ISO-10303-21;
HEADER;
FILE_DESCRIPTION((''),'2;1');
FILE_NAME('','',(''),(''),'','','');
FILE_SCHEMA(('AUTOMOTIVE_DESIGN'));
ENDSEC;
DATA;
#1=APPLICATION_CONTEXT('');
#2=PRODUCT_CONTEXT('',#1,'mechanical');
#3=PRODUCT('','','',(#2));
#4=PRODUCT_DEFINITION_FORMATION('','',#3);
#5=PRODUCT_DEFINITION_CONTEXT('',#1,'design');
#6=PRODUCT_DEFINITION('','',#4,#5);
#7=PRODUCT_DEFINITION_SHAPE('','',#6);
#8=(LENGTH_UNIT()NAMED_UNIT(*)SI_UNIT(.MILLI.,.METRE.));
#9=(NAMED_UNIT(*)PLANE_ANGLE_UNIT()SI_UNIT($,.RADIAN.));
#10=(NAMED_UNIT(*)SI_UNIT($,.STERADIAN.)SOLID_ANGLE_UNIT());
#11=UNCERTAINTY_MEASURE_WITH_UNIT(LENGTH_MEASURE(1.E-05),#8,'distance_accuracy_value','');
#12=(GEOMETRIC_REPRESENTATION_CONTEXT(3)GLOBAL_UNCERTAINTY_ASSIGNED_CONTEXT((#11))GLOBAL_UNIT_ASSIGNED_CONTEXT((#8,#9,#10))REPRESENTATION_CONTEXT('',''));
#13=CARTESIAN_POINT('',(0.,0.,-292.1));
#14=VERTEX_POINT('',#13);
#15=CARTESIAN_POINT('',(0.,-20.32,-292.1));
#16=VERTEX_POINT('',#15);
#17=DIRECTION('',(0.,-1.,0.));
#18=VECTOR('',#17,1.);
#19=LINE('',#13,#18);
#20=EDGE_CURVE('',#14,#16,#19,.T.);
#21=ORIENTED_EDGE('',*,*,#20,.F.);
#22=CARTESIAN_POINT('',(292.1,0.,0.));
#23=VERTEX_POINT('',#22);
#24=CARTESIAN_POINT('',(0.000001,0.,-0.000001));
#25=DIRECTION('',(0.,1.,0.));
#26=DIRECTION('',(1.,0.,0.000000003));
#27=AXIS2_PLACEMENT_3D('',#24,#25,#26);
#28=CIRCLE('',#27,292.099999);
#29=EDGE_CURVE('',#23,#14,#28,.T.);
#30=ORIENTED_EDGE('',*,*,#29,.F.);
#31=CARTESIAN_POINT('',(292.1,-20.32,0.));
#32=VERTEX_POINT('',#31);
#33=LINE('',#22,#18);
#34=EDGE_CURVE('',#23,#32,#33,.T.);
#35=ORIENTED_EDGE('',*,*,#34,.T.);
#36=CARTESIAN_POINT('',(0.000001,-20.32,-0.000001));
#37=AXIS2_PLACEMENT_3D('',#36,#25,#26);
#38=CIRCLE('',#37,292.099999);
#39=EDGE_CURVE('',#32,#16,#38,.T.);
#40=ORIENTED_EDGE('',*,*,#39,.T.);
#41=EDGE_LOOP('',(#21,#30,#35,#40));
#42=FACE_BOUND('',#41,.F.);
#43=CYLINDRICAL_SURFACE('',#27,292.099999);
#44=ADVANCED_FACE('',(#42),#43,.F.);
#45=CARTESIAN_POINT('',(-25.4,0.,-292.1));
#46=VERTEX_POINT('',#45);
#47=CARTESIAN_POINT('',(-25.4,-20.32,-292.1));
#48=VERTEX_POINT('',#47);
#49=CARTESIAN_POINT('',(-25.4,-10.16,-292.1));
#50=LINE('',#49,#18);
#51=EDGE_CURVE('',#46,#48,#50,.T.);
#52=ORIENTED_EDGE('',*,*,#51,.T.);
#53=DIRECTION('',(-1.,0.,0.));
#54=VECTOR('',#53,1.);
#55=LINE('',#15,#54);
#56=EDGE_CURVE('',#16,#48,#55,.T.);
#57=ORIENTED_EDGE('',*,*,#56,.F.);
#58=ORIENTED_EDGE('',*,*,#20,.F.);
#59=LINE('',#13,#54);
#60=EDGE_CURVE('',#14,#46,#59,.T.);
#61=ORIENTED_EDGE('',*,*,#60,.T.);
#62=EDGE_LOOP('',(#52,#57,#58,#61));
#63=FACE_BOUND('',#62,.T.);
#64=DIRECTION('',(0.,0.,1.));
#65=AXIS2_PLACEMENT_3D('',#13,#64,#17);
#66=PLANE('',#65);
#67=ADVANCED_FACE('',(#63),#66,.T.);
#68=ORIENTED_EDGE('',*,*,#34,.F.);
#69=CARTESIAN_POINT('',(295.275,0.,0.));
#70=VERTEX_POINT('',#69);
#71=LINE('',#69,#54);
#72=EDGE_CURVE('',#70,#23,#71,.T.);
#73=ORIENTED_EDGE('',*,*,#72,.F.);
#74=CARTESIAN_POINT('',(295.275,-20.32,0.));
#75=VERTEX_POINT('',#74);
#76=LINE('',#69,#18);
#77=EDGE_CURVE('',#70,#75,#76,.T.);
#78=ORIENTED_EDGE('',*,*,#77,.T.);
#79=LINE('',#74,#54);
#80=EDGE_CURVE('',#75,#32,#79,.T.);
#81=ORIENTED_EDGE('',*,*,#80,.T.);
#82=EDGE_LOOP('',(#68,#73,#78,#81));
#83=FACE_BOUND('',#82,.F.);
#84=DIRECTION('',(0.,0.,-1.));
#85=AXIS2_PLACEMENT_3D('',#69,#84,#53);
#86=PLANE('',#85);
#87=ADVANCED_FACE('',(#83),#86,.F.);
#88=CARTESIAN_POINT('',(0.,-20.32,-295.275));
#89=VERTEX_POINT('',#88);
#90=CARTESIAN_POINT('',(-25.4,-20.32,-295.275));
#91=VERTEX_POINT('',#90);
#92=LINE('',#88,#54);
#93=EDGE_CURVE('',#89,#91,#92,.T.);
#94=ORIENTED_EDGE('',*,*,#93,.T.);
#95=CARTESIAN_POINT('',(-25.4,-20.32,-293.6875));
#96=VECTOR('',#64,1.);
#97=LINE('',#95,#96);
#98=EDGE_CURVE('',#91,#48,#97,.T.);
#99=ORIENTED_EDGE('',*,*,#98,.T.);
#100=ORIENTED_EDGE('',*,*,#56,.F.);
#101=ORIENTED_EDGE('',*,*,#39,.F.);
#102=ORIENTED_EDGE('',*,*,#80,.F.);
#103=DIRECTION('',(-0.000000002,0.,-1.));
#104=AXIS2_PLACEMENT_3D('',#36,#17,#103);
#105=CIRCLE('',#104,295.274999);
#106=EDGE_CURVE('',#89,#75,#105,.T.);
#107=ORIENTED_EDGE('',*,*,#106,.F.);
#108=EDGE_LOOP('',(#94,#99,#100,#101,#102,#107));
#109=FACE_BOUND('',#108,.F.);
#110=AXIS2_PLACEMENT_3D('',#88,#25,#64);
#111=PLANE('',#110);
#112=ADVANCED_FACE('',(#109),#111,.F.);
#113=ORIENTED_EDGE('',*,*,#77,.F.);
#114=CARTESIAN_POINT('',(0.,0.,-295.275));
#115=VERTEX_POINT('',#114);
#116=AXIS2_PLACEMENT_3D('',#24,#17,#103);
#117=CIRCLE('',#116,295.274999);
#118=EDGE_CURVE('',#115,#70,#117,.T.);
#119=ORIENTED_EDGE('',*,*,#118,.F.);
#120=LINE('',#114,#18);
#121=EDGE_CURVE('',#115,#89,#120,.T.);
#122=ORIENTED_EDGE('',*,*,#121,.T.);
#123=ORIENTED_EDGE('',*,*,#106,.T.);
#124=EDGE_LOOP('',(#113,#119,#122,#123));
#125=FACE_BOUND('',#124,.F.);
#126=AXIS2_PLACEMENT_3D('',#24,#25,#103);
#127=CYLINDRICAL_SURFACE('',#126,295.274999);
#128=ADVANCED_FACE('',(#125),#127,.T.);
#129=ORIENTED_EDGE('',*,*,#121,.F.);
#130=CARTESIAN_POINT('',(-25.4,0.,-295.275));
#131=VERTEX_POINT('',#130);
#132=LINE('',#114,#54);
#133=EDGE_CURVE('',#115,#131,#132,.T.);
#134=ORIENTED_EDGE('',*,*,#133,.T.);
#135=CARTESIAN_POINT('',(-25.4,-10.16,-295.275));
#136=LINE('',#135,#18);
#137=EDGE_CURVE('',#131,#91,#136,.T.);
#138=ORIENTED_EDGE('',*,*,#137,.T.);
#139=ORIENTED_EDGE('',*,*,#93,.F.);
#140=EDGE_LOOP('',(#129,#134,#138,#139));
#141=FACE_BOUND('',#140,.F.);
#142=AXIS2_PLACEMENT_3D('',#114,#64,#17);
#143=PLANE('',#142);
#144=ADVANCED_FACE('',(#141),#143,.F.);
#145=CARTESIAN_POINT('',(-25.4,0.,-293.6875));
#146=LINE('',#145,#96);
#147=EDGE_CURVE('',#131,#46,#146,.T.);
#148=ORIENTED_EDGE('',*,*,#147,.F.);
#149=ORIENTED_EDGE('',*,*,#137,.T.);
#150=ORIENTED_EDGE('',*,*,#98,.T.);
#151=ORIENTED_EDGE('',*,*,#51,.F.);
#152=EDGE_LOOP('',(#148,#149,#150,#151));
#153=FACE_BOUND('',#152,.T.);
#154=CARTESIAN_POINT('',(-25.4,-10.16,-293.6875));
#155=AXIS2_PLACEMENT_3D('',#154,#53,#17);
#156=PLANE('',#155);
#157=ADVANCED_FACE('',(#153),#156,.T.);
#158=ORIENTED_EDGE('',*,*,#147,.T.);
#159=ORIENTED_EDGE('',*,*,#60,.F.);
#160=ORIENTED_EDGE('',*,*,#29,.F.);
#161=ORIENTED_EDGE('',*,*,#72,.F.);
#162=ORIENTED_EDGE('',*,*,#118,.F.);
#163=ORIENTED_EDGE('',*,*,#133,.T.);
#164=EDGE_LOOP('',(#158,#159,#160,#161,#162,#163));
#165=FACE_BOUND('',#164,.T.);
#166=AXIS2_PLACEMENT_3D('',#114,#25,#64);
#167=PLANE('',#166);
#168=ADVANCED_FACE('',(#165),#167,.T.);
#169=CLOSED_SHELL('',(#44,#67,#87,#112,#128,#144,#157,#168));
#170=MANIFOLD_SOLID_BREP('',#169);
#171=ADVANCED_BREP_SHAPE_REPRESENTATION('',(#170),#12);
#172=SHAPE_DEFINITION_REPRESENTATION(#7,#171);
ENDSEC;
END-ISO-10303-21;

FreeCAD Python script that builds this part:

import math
import FreeCAD as App
import Part
import Sketcher
Q = App.Units.Quantity


def add_polygon(sketch, points):
    """Adds a closed chain of lines whose ends are joined by coincident constraints."""
    first, n = sketch.GeometryCount, len(points)
    for a, b in zip(points, points[1:] + points[:1]):
        sketch.addGeometry(Part.LineSegment(App.Vector(*a, 0), App.Vector(*b, 0)), False)
    for i in range(n):
        sketch.addConstraint(Sketcher.Constraint("Coincident", first + i, 2, first + (i + 1) % n, 1))

doc = App.newDocument("Part")
body = doc.addObject("PartDesign::Body", "Body")

sketch1 = body.newObject("Sketcher::SketchObject", "Sketch")
sketch1.AttachmentSupport = (doc.getObject("XZ_Plane"), [""])
sketch1.MapMode = "FlatFace"
sketch1.addGeometry([
    Part.ArcOfCircle(Part.Circle(App.Vector(0, 0, 0), App.Vector(0, 0, 1), 292.1), math.radians(-90), math.radians(0)),
    Part.LineSegment(App.Vector(0, -292.1, 0), App.Vector(0, -295.3, 0)),
    Part.ArcOfCircle(Part.Circle(App.Vector(0, 0, 0), App.Vector(0, 0, 1), 295.3), math.radians(-90), math.radians(0)),
    Part.LineSegment(App.Vector(295.3, 0, 0), App.Vector(292.1, 0, 0)),
], False)
sketch1.addConstraint([
    Sketcher.Constraint("Coincident", 0, 1, 1, 1),
    Sketcher.Constraint("Coincident", 1, 2, 2, 1),
    Sketcher.Constraint("Coincident", 2, 2, 3, 1),
    Sketcher.Constraint("Coincident", 3, 2, 0, 2),
    Sketcher.Constraint("Vertical", 1),
    Sketcher.Constraint("Horizontal", 3),
    Sketcher.Constraint("Coincident", 0, 3, -1, 1),
    Sketcher.Constraint("Coincident", 2, 3, -1, 1),
    Sketcher.Constraint("PointOnObject", 0, 1, -2),
    Sketcher.Constraint("PointOnObject", 2, 2, -1),
    Sketcher.Constraint("Radius", 0, Q("11.5 in")),
    Sketcher.Constraint("Radius", 2, Q("11.625 in")),
])
pad1 = body.newObject("PartDesign::Pad", "Pad")
pad1.Profile = sketch1
pad1.Length = Q("0.8 in")

sketch2 = body.newObject("Sketcher::SketchObject", "Sketch001")
sketch2.AttachmentSupport = (doc.getObject("YZ_Plane"), [""])
sketch2.MapMode = "FlatFace"
add_polygon(sketch2, [(0, -292.1), (0, -295.3), (-20.3, -295.3), (-20.3, -292.1)])
sketch2.addConstraint([
    Sketcher.Constraint("Vertical", 0),
    Sketcher.Constraint("Horizontal", 1),
    Sketcher.Constraint("Vertical", 2),
    Sketcher.Constraint("Horizontal", 3),
    Sketcher.Constraint("PointOnObject", 0, 2, -2),
    Sketcher.Constraint("DistanceX", 1, 2, 1, 1, Q("0.8 in")),
    Sketcher.Constraint("DistanceY", 2, 2, -1, 1, Q("11.5 in")),
    Sketcher.Constraint("DistanceY", 0, 2, 0, 1, Q("0.125 in")),
])
pad2 = body.newObject("PartDesign::Pad", "Pad001")
pad2.Profile = sketch2
pad2.Length = Q("1 in")
pad2.Reversed = True

doc.recompute()
